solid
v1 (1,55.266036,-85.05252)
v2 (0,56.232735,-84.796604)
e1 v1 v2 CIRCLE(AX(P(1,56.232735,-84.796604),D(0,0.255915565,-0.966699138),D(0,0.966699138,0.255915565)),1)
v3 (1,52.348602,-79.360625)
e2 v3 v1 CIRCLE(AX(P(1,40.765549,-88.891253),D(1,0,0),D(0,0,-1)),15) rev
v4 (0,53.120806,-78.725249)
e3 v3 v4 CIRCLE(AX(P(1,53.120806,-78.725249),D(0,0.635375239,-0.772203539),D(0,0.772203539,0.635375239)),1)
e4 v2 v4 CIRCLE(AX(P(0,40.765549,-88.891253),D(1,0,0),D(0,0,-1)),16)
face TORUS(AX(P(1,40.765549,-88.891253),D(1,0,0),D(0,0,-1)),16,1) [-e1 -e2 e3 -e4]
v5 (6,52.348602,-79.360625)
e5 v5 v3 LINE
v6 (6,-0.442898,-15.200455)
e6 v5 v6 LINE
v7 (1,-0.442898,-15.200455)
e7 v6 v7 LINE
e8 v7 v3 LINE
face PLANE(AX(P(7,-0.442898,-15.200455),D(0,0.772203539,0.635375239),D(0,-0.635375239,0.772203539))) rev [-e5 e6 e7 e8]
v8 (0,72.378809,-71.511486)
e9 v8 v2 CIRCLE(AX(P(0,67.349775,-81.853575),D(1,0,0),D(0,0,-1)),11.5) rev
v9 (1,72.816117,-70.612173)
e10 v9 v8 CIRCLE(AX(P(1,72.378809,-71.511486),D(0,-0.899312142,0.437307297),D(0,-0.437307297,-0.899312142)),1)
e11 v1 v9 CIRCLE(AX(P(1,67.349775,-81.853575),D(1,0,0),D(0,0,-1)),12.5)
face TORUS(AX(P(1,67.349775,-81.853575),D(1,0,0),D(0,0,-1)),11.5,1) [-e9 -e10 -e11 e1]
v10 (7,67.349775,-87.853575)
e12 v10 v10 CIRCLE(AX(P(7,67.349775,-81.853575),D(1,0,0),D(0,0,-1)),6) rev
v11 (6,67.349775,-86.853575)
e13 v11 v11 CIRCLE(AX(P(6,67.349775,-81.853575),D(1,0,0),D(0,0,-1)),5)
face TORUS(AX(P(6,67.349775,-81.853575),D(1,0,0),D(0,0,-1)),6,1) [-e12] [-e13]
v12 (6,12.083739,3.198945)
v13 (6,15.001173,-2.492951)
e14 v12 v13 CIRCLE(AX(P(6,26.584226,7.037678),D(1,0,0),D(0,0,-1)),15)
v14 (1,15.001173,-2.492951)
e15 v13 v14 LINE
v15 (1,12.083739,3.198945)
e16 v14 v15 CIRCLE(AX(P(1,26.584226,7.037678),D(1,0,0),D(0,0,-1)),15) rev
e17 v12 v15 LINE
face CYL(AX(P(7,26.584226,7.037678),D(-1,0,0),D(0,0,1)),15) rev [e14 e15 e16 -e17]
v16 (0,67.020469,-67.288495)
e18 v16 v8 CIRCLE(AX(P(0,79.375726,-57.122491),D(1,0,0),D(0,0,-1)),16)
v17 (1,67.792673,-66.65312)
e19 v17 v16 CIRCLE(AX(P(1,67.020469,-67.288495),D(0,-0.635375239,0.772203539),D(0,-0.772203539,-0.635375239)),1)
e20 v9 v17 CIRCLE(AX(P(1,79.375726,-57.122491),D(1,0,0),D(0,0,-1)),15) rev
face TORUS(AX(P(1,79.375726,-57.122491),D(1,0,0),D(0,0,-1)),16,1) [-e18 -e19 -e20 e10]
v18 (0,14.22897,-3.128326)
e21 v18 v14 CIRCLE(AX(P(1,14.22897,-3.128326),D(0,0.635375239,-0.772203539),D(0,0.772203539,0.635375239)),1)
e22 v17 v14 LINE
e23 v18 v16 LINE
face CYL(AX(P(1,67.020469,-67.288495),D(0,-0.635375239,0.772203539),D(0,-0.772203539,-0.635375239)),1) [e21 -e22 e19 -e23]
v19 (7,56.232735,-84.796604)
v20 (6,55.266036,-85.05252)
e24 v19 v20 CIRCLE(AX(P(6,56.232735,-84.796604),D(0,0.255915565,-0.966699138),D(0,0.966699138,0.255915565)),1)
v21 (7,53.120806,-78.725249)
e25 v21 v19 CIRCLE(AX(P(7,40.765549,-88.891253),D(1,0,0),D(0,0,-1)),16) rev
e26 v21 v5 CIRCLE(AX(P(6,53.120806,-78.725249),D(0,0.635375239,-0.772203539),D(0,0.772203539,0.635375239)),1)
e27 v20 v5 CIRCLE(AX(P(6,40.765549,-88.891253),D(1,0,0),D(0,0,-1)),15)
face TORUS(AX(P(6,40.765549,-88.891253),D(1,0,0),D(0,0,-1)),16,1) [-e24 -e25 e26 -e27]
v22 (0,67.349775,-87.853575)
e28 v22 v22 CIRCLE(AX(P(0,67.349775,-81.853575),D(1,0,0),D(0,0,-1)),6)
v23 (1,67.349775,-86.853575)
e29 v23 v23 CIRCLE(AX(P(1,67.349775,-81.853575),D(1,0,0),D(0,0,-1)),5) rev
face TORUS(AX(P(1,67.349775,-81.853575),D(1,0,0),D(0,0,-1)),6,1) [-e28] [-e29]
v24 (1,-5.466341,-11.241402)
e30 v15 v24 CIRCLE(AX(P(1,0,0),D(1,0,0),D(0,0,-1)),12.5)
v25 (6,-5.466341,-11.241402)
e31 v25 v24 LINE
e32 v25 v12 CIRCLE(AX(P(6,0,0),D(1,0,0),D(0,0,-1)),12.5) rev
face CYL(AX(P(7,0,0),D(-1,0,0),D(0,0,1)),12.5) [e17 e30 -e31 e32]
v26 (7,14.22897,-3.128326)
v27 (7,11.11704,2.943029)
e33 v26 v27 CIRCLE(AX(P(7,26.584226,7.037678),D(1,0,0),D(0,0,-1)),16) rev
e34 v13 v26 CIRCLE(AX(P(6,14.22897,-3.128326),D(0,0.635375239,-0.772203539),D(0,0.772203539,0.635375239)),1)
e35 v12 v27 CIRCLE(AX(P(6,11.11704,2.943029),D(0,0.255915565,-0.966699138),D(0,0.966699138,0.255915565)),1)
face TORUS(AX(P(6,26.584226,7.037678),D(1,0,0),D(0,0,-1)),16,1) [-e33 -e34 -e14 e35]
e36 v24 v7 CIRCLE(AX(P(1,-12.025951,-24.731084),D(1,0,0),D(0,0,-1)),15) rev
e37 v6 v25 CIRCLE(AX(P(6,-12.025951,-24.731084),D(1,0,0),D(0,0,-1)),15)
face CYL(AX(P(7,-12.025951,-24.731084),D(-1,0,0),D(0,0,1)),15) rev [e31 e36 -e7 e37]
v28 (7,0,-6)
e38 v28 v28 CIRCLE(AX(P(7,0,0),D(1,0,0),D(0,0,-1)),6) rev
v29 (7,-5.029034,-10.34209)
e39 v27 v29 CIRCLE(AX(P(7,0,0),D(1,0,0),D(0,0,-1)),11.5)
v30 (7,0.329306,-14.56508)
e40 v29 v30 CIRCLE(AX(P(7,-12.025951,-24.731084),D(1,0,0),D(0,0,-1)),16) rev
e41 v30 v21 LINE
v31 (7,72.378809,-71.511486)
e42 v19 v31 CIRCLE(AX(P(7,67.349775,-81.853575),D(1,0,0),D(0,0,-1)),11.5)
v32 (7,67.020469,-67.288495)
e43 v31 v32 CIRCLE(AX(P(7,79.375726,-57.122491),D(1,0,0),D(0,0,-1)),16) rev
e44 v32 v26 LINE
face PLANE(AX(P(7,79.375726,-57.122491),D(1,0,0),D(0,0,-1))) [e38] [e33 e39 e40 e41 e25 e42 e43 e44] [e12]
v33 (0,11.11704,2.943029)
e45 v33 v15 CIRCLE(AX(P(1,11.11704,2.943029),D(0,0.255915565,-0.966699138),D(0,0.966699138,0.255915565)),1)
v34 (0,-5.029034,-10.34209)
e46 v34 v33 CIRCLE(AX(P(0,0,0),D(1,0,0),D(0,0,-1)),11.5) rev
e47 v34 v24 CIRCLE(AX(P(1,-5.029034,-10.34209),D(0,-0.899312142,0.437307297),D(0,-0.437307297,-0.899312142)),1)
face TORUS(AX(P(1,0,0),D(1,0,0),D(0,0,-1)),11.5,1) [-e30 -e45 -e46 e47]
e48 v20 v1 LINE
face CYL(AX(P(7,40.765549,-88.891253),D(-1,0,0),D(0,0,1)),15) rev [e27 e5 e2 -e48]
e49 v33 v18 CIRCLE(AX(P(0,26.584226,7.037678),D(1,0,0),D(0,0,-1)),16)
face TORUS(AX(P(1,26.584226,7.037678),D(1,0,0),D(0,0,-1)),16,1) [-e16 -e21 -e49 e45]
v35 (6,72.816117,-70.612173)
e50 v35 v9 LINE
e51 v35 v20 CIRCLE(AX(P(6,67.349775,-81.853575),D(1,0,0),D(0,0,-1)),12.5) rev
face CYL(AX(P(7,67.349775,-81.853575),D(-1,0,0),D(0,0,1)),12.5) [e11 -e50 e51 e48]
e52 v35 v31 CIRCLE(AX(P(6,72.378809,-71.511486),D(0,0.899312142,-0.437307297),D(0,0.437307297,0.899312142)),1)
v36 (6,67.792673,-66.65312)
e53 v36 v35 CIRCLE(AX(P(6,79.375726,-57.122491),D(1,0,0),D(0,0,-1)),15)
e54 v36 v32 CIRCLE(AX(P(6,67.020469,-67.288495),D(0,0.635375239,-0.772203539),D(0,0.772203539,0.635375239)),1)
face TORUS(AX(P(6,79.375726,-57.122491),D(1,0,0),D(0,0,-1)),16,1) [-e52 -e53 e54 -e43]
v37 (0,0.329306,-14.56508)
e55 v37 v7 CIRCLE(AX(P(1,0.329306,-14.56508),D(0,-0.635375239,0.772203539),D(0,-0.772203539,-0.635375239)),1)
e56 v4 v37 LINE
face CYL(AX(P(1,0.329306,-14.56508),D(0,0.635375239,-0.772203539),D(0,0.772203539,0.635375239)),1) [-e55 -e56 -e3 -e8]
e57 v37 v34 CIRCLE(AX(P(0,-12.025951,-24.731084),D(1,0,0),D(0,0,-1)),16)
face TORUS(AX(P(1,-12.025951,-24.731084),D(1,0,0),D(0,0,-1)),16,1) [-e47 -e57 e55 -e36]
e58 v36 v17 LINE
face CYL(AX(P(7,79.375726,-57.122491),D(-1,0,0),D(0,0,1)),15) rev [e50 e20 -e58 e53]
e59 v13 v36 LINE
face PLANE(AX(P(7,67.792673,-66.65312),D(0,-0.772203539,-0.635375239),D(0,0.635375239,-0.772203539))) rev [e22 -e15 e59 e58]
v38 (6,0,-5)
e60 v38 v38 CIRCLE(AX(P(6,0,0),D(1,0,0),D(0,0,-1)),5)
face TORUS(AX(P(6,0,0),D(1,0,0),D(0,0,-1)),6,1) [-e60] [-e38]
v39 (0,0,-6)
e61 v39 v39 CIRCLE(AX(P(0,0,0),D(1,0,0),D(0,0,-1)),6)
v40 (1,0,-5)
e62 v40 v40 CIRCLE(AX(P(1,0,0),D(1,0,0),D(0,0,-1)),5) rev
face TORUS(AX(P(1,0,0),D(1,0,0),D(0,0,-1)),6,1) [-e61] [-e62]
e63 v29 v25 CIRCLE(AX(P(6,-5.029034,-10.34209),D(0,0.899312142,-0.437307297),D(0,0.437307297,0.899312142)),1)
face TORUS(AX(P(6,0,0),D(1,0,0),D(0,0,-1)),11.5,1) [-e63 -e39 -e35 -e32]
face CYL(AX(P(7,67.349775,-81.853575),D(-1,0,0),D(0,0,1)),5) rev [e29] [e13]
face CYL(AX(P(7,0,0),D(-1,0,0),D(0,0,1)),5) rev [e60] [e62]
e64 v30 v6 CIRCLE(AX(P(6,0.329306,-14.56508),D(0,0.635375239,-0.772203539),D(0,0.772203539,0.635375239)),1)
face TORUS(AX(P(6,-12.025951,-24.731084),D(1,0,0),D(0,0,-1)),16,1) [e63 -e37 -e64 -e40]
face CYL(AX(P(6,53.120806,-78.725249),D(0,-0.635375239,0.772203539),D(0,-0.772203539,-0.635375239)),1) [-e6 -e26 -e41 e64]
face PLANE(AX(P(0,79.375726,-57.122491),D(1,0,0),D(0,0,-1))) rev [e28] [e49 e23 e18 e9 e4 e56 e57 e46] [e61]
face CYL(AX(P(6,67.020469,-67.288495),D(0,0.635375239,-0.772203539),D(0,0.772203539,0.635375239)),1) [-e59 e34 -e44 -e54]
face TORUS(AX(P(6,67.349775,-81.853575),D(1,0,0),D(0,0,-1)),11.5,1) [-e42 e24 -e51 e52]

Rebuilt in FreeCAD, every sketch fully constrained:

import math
import FreeCAD as App
import Part
import Sketcher
Q = App.Units.Quantity


def edges_at(feature, points):
    """Names of the edges that pass closest to the given points."""
    edges = feature.Shape.Edges
    near = lambda p: min(range(len(edges)), key=lambda i: edges[i].distToShape(Part.Vertex(*p))[0])
    return sorted({f"Edge{near(p) + 1}" for p in points})

doc = App.newDocument("Part")
params = doc.addObject("Spreadsheet::Sheet", "Params")
for row, (alias, value) in enumerate([
    ("sketch1_diameter", "10 mm"),
    ("sketch1_radius", "15 mm"),
    ("sketch1_radius2", "12.5 mm"),
    ("pad1_length", "7 mm"),
    ("fillet_radius", "1 mm"),
], start=1):
    params.set(f"A{row}", alias)
    params.set(f"B{row}", "=" + value)
    params.setAlias(f"B{row}", alias)

body = doc.addObject("PartDesign::Body", "Body")

# Sketch on YZ plane
sketch1 = doc.addObject("Sketcher::SketchObject", "Sketch")
body.addObject(sketch1)
sketch1.AttachmentSupport = (doc.YZ_Plane, [""])
sketch1.MapMode = "FlatFace"
sketch1.addGeometry([
    Part.LineSegment(App.Vector(67.792673, -66.65312, 0), App.Vector(15.001173, -2.492951, 0)),  # 0
    Part.ArcOfCircle(Part.Circle(App.Vector(26.584226, 7.037678, 0), App.Vector(0, 0, 1), 15), math.radians(-165.172157), math.radians(-140.552179)),  # 1
    Part.ArcOfCircle(Part.Circle(App.Vector(0, 0, 0), App.Vector(0, 0, 1), 12.5), math.radians(14.827843), math.radians(244.067798)),  # 2
    Part.ArcOfCircle(Part.Circle(App.Vector(-12.025951, -24.731084, 0), App.Vector(0, 0, 1), 15), math.radians(39.447821), math.radians(64.067798)),  # 3
    Part.LineSegment(App.Vector(-0.442898, -15.200455, 0), App.Vector(52.348602, -79.360625, 0)),  # 4
    Part.ArcOfCircle(Part.Circle(App.Vector(40.765549, -88.891253, 0), App.Vector(0, 0, 1), 15), math.radians(14.827843), math.radians(39.447821)),  # 5
    Part.ArcOfCircle(Part.Circle(App.Vector(67.349775, -81.853575, 0), App.Vector(0, 0, 1), 12.5), math.radians(-165.172157), math.radians(64.067798)),  # 6
    Part.ArcOfCircle(Part.Circle(App.Vector(79.375726, -57.122491, 0), App.Vector(0, 0, 1), 15), math.radians(-140.552179), math.radians(-115.932202)),  # 7
    Part.Circle(App.Vector(67.349775, -81.853575, 0), App.Vector(0, 0, 1), 5),  # 8
    Part.Circle(App.Vector(0, 0, 0), App.Vector(0, 0, 1), 5),  # 9
], False)
sketch1.addConstraint([
    Sketcher.Constraint("Tangent", 0, 2, 1, 2),
    Sketcher.Constraint("Tangent", 1, 1, 2, 1),
    Sketcher.Constraint("Tangent", 2, 2, 3, 2),
    Sketcher.Constraint("Tangent", 3, 1, 4, 1),
    Sketcher.Constraint("Tangent", 4, 2, 5, 2),
    Sketcher.Constraint("Tangent", 5, 1, 6, 1),
    Sketcher.Constraint("Tangent", 6, 2, 7, 2),
    Sketcher.Constraint("Tangent", 7, 1, 0, 1),
    Sketcher.Constraint("Coincident", 2, 3, -1, 1),
    Sketcher.Constraint("Coincident", 9, 3, -1, 1),
    Sketcher.Constraint("Coincident", 8, 3, 6, 3),
    Sketcher.Constraint("Equal", 1, 3),
    Sketcher.Constraint("Equal", 3, 5),
    Sketcher.Constraint("Equal", 2, 6),
    Sketcher.Constraint("Equal", 5, 7),
    Sketcher.Constraint("Equal", 8, 9),
    Sketcher.Constraint("Parallel", 0, 4),
    Sketcher.Constraint("Equal", 0, 4),
    Sketcher.Constraint("Diameter", 8, Q("10 mm")),
    Sketcher.Constraint("Radius", 1, Q("15 mm")),
    Sketcher.Constraint("Radius", 2, Q("12.5 mm")),
    Sketcher.Constraint("DistanceY", 2, 2, -1, 1, Q("11.241402 mm")),
    Sketcher.Constraint("DistanceX", 3, 3, 5, 3, Q("52.7915 mm")),
    Sketcher.Constraint("Distance", 0, Q("83.087122 mm")),
    Sketcher.Constraint("DistanceY", -1, 1, 1, 3, Q("7.037678 mm")),
])
sketch1.setExpression("Constraints[18]", "Params.sketch1_diameter")
sketch1.setExpression("Constraints[19]", "Params.sketch1_radius")
sketch1.setExpression("Constraints[20]", "Params.sketch1_radius2")
pad1 = doc.addObject("PartDesign::Pad", "Pad")
body.addObject(pad1)
pad1.Profile = sketch1
pad1.setExpression("Length", "Params.pad1_length")
doc.recompute()

fillet = doc.addObject("PartDesign::Fillet", "Fillet")
body.addObject(fillet)
fillet.Base = (pad1, edges_at(pad1, [
    (0, -7.942, 9.653),
    (0, 13.236, 0.196),
    (0, 41.397, -34.573),
    (0, 70.091, -68.904),
    (7, 13.236, 0.196),
    (7, -7.942, 9.653),
    (7, -2.741, -12.95),
    (0, 0, 5),
    (7, 0, 5),
    (7, 25.953, -47.281),
    (0, 67.35, -76.854),
    (7, 67.35, -76.854),
    (7, 54.114, -82.049),
    (7, 75.292, -91.506),
    (7, 70.091, -68.904),
    (0, 75.292, -91.506),
    (7, 41.397, -34.573),
    (0, 54.114, -82.049),
    (0, 25.953, -47.281),
    (0, -2.741, -12.95),
]))
fillet.setExpression("Radius", "Params.fillet_radius")

doc.recompute()
